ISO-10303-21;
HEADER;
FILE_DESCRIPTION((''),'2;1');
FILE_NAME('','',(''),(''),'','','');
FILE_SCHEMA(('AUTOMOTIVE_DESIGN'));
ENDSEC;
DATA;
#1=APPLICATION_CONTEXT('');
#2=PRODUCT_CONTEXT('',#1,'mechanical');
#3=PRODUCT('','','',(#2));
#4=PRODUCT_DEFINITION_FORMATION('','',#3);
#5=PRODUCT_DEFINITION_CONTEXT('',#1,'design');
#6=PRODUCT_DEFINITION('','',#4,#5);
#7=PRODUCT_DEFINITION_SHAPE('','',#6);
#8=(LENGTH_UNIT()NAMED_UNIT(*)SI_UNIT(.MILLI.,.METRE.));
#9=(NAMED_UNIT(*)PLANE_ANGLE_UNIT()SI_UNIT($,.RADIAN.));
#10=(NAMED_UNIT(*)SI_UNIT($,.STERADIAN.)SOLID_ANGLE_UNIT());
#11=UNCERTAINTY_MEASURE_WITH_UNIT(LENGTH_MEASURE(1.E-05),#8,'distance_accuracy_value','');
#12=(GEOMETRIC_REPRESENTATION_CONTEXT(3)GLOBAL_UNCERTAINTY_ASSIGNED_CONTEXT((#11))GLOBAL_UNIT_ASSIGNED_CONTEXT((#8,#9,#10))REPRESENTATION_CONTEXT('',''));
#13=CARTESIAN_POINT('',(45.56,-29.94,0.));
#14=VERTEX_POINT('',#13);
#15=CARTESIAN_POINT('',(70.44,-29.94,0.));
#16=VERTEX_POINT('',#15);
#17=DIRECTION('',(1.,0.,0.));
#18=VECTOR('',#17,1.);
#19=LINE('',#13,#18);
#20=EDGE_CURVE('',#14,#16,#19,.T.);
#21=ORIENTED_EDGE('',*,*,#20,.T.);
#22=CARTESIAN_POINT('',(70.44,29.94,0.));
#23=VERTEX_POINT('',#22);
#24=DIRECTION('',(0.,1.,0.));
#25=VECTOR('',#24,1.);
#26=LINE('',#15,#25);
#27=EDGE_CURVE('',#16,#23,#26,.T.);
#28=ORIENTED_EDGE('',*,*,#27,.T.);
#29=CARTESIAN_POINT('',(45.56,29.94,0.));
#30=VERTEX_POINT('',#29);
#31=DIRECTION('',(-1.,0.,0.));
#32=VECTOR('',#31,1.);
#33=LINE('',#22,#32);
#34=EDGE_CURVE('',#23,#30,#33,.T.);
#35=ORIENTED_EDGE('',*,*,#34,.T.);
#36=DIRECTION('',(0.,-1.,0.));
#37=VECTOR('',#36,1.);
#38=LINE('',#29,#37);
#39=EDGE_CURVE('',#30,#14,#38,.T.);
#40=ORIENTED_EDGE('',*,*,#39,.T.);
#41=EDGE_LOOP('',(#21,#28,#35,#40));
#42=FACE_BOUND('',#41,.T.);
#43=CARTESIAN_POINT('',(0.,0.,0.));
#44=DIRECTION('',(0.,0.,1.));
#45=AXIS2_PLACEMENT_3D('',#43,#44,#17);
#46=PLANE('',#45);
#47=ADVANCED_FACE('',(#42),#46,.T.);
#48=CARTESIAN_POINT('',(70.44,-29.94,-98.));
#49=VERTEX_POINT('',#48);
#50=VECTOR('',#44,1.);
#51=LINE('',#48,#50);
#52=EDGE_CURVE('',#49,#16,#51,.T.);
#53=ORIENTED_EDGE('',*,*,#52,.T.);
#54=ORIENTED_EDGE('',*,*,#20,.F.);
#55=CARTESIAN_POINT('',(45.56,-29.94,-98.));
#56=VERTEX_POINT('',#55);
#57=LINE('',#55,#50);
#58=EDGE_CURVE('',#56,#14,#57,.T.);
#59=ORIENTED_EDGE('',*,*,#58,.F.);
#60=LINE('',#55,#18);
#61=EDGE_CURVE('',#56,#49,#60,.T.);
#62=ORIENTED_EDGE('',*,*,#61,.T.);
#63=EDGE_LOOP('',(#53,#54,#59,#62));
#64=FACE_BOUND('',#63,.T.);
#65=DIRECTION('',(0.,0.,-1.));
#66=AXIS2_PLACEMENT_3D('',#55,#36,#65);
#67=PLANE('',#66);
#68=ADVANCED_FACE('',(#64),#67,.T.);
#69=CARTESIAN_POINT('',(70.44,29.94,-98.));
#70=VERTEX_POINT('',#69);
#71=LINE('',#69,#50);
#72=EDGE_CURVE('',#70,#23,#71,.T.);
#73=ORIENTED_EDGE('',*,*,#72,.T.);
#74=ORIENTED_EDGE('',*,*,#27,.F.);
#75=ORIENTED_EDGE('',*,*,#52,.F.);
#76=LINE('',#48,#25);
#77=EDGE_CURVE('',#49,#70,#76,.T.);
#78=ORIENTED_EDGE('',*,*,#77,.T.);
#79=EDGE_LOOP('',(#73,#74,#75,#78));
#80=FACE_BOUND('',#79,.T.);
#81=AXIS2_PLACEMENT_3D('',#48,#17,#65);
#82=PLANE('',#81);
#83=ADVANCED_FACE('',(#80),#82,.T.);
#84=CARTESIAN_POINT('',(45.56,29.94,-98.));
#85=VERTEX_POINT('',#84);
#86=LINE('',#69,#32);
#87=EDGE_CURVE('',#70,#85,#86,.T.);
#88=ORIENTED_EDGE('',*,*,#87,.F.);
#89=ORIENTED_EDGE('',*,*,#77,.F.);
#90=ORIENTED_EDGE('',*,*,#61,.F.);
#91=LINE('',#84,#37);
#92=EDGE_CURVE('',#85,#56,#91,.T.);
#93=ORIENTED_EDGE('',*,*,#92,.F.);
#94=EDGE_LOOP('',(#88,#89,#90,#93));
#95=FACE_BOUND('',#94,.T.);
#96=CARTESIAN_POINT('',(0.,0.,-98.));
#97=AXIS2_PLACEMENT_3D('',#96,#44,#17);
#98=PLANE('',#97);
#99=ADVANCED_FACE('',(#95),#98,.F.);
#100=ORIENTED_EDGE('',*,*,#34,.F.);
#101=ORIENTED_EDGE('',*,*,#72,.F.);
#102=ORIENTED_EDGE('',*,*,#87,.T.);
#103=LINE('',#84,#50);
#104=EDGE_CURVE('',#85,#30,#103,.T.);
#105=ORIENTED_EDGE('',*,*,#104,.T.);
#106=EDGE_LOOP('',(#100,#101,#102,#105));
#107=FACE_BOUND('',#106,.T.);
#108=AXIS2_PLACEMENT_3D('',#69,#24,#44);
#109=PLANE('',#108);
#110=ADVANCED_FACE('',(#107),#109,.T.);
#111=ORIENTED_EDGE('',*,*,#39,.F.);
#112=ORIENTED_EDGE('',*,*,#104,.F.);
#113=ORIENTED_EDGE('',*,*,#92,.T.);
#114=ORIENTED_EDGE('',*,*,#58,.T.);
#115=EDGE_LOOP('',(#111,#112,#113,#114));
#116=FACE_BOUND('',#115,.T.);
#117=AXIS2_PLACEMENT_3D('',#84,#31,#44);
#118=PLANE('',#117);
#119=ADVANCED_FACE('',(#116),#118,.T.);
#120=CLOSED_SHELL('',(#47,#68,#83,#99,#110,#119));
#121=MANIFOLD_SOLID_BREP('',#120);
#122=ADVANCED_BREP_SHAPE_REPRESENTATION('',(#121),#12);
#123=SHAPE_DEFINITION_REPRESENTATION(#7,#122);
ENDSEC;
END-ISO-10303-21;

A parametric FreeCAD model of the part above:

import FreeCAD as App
import Part
import Sketcher
Q = App.Units.Quantity


def add_polygon(sketch, points):
    """Adds a closed chain of lines whose ends are joined by coincident constraints."""
    first, n = sketch.GeometryCount, len(points)
    for a, b in zip(points, points[1:] + points[:1]):
        sketch.addGeometry(Part.LineSegment(App.Vector(*a, 0), App.Vector(*b, 0)), False)
    for i in range(n):
        sketch.addConstraint(Sketcher.Constraint("Coincident", first + i, 2, first + (i + 1) % n, 1))

doc = App.newDocument("Part")
body = doc.addObject("PartDesign::Body", "Body")

sketch1 = body.newObject("Sketcher::SketchObject", "Sketch")
sketch1.AttachmentSupport = (doc.getObject("XY_Plane"), [""])
sketch1.MapMode = "FlatFace"
add_polygon(sketch1, [(46, 30), (46, -30), (70, -30), (70, 30)])
sketch1.addConstraint([
    Sketcher.Constraint("Vertical", 0),
    Sketcher.Constraint("Horizontal", 1),
    Sketcher.Constraint("Vertical", 2),
    Sketcher.Constraint("Horizontal", 3),
    Sketcher.Constraint("DistanceX", 1, 1, 1, 2, Q("24.88 mm")),
    Sketcher.Constraint("DistanceY", 0, 2, 0, 1, Q("59.88 mm")),
    Sketcher.Constraint("DistanceX", -1, 1, 0, 2, Q("45.56 mm")),
    Sketcher.Constraint("DistanceY", 0, 2, -1, 1, Q("29.94 mm")),
])
pad1 = body.newObject("PartDesign::Pad", "Pad")
pad1.Profile = sketch1
pad1.Length = 98
pad1.Reversed = True

doc.recompute()
